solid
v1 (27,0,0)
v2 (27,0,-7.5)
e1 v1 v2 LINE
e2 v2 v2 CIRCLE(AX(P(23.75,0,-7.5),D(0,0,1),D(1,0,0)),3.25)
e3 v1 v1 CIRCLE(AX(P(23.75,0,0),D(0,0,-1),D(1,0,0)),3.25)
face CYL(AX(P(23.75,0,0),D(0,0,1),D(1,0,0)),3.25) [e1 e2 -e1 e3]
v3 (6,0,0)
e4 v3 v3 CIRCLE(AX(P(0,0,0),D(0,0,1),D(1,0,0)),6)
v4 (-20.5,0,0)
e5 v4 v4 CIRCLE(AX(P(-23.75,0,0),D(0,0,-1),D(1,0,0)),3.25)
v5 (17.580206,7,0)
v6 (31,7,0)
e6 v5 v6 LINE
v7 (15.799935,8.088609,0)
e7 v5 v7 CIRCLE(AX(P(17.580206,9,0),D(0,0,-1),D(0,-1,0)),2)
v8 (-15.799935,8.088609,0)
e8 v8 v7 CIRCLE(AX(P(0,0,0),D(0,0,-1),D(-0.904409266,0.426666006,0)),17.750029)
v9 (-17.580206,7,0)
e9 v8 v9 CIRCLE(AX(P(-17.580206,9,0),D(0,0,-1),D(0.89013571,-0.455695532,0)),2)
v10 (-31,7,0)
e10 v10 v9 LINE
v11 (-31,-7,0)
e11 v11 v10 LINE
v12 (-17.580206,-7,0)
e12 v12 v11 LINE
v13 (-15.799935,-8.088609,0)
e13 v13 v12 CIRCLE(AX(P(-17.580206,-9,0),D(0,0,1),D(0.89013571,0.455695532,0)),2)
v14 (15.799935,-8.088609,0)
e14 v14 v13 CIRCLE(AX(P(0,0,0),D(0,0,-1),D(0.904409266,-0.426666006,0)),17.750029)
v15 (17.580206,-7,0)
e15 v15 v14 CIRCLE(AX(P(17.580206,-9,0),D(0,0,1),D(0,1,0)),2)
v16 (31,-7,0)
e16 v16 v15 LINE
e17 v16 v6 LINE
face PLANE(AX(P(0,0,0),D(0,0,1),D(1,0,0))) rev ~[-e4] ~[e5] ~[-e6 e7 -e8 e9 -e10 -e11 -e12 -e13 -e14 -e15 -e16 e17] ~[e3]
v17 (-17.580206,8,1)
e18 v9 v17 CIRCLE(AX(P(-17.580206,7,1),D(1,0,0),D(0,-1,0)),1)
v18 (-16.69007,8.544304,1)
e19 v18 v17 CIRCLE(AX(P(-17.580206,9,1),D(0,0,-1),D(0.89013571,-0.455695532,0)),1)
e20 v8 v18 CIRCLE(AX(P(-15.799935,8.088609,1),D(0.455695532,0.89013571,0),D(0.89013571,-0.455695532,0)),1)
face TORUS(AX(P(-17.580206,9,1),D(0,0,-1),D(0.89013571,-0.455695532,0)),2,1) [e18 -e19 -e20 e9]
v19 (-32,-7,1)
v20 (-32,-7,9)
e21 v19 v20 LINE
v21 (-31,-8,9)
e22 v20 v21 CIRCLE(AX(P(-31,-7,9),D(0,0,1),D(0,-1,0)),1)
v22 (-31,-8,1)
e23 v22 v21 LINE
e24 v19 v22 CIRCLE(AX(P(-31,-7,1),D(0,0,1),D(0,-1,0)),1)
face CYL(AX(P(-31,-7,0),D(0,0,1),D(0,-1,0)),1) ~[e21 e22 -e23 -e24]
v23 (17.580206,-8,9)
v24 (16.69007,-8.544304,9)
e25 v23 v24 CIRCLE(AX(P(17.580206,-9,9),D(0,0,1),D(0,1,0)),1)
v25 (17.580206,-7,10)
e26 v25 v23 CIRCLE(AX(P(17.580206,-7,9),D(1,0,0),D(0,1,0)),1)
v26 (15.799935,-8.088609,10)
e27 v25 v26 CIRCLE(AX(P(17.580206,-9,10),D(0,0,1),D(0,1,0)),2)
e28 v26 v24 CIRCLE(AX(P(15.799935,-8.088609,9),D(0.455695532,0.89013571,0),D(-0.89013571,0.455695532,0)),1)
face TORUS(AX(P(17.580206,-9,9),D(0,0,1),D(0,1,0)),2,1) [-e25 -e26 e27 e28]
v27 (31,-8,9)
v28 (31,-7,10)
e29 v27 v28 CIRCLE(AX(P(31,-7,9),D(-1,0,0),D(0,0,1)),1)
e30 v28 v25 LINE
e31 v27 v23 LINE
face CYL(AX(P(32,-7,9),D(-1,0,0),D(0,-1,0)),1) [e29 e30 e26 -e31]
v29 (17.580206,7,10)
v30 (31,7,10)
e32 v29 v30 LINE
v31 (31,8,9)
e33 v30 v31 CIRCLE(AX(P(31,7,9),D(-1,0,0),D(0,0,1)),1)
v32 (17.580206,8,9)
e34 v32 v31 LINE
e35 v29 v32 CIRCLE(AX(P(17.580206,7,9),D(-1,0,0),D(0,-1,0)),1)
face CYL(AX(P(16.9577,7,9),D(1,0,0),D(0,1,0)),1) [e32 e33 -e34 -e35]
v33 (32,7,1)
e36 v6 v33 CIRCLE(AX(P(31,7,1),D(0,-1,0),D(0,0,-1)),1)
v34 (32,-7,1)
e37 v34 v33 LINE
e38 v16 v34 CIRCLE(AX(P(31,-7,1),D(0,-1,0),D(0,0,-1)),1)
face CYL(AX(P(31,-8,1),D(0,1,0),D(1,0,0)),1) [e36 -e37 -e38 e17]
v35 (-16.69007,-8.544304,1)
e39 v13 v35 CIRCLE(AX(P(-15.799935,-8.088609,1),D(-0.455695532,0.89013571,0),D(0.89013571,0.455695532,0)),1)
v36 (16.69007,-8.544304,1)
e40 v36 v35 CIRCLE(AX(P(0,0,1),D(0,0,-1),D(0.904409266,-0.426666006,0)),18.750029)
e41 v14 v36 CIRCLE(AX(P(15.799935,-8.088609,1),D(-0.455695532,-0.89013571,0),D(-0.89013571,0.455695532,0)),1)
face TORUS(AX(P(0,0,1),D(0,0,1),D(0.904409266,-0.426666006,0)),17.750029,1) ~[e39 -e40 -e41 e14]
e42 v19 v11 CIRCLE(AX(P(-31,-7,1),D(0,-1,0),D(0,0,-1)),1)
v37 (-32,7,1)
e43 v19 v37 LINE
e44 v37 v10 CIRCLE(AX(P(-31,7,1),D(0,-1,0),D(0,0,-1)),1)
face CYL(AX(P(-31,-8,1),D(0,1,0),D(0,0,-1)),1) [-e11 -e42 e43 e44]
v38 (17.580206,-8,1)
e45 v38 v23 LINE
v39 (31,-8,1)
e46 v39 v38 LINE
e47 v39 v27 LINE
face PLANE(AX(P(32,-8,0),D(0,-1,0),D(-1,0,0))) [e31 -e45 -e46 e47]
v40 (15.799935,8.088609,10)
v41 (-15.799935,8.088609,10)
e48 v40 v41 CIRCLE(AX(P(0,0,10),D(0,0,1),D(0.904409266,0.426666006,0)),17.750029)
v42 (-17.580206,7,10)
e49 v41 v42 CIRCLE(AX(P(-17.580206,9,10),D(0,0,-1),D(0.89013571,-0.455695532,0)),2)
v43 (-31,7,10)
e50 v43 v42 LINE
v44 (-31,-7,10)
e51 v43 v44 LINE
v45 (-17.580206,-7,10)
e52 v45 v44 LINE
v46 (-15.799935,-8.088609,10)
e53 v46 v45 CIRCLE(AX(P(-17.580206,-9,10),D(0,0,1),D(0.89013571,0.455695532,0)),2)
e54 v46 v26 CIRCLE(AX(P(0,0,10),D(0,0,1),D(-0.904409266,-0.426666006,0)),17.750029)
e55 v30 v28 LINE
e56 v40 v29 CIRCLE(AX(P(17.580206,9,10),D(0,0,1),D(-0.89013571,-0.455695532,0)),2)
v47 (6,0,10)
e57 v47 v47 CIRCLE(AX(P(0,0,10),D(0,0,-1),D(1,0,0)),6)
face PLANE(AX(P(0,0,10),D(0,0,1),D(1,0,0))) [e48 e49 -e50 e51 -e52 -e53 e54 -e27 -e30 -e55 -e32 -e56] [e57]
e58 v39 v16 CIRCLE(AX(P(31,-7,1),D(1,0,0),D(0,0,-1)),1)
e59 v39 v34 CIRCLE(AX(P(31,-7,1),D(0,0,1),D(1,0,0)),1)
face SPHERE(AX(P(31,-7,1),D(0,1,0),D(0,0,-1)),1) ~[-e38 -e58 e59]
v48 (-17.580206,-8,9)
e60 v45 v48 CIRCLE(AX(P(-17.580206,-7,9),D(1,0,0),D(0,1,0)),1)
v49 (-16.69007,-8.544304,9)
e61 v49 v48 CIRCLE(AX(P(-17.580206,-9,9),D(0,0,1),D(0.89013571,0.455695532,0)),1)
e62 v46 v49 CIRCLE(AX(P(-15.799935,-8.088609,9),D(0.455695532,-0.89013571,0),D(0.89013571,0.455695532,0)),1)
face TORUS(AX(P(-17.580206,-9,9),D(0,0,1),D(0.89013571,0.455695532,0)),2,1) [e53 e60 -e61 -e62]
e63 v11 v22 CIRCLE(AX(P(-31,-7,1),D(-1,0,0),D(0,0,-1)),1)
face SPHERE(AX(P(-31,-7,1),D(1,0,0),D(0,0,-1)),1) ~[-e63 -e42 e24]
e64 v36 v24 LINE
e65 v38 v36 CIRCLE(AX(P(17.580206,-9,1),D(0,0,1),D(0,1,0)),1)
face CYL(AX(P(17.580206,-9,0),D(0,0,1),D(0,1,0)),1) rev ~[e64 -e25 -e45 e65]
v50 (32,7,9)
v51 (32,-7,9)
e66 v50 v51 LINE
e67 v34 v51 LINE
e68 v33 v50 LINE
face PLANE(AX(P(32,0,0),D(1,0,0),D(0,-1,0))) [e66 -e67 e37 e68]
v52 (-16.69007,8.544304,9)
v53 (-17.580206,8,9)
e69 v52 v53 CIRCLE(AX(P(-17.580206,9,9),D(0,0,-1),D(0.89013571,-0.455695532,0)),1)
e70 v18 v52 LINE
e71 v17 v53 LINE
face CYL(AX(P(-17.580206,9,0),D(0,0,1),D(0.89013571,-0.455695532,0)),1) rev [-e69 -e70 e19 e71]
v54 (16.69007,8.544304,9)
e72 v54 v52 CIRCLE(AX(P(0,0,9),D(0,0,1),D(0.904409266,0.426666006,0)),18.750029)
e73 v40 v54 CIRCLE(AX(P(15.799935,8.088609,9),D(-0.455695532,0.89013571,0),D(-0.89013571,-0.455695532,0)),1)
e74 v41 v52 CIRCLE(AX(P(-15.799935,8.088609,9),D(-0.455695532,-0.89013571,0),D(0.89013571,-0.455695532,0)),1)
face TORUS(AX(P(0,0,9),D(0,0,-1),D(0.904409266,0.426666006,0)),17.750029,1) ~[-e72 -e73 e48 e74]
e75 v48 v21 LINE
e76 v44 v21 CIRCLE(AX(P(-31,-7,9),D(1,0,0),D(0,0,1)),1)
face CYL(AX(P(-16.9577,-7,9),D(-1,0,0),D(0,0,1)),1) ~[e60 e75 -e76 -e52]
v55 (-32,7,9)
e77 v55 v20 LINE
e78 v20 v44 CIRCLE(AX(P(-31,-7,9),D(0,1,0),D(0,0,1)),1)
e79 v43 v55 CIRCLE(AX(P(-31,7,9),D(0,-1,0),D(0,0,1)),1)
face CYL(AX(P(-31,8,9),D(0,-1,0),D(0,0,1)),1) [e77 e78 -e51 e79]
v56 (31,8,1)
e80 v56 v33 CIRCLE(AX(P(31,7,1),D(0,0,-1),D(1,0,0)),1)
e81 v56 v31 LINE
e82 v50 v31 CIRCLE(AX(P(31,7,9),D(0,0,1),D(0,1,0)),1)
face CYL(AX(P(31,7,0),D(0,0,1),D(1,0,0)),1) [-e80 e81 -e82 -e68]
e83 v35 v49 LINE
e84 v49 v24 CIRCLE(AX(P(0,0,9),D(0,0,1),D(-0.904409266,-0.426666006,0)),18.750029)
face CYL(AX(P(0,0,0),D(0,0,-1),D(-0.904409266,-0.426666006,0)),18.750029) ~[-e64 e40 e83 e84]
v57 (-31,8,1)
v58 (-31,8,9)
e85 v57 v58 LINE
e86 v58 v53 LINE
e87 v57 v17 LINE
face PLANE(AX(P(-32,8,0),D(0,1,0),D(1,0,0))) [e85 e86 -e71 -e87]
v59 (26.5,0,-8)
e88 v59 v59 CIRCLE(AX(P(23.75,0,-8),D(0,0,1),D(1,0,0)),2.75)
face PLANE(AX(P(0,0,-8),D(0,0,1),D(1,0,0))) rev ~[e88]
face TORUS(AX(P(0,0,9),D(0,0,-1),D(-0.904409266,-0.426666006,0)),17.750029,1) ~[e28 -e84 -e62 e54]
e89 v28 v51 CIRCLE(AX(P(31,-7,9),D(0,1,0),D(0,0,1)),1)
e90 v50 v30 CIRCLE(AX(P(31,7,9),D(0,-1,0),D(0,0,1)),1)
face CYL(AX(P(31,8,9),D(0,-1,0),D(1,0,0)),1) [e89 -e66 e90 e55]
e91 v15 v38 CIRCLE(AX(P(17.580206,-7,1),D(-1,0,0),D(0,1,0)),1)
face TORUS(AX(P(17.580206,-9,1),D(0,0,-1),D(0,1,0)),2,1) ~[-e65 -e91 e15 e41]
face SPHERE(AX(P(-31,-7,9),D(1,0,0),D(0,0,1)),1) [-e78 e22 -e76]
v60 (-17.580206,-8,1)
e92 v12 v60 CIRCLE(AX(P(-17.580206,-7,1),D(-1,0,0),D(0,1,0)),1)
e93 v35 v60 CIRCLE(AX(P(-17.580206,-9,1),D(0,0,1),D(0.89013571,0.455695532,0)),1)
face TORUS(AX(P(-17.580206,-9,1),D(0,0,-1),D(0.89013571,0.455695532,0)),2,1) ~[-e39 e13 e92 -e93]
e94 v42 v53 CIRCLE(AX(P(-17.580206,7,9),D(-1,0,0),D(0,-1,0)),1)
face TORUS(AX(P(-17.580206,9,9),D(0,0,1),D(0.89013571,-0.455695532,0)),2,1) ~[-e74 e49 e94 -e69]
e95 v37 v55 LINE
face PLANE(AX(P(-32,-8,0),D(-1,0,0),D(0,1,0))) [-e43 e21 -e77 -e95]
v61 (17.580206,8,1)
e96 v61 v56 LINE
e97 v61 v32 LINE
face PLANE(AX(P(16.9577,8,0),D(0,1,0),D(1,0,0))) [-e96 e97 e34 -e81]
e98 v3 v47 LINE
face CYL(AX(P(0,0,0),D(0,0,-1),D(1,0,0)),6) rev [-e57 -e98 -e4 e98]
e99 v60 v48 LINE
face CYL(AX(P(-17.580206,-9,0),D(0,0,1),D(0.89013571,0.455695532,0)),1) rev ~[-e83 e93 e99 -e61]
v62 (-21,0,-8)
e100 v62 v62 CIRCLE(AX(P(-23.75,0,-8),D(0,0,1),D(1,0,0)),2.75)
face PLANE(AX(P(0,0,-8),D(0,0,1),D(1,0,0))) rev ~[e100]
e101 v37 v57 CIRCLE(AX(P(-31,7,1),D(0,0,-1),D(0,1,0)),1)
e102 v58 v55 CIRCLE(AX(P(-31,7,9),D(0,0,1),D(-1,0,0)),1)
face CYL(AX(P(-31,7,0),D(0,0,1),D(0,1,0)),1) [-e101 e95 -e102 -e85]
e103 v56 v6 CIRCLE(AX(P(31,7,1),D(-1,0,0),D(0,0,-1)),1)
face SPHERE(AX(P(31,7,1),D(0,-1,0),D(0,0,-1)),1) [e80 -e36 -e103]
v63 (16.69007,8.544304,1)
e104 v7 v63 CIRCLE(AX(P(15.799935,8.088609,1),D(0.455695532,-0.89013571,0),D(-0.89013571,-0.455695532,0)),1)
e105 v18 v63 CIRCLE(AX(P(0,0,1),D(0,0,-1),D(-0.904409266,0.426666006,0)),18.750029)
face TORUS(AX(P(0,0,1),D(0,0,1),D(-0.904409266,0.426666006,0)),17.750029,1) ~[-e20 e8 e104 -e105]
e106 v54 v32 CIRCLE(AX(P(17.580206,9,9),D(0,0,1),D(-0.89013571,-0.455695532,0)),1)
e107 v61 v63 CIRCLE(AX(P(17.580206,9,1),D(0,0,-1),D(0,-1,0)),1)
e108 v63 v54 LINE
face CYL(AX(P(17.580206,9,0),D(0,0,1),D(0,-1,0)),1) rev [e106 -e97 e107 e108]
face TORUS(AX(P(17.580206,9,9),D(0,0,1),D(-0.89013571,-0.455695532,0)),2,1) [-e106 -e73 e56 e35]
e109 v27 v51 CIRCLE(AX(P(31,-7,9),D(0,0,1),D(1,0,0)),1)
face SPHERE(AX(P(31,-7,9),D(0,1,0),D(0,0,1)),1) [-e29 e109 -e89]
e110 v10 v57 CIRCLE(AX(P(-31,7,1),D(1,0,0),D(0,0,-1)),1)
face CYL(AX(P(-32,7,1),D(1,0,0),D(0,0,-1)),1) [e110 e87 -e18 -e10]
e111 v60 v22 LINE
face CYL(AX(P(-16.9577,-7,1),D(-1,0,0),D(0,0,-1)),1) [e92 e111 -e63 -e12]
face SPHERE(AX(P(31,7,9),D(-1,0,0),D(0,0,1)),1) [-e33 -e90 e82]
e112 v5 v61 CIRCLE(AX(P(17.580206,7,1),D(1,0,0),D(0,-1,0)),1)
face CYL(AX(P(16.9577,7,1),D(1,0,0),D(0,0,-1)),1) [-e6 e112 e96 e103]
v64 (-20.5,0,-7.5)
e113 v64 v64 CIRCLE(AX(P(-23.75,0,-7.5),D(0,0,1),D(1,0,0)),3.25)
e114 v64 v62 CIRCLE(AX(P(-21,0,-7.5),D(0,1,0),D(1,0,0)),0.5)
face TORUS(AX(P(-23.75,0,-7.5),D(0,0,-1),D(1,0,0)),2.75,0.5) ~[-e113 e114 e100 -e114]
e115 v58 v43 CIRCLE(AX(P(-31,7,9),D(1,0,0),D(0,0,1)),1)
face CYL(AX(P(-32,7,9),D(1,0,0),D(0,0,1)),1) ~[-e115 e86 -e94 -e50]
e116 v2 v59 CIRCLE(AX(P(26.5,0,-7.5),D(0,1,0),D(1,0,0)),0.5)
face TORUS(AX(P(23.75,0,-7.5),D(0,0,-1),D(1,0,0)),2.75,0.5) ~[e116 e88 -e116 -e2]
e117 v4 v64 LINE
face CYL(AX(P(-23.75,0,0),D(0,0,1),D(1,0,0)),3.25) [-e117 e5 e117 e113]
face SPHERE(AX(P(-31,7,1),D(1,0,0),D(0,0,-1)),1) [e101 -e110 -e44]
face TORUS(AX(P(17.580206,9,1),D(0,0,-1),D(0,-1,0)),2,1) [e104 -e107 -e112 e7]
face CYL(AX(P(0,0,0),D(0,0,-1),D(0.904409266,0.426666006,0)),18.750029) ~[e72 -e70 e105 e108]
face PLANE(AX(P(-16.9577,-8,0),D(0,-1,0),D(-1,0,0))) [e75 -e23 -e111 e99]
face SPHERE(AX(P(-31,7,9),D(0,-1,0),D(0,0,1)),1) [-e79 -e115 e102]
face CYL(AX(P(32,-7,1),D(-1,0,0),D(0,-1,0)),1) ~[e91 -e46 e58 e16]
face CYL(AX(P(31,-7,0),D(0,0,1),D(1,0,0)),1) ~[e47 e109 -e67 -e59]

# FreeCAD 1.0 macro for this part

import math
import FreeCAD as App
import Part
import Sketcher


def edges_at(feature, points):
    """Names of the edges that pass closest to the given points."""
    edges = feature.Shape.Edges
    near = lambda p: min(range(len(edges)), key=lambda i: edges[i].distToShape(Part.Vertex(*p))[0])
    return sorted({f"Edge{near(p) + 1}" for p in points})

doc = App.newDocument("Part")
body = doc.addObject("PartDesign::Body", "Body")

# Sketch on XY plane
sketch1 = doc.addObject("Sketcher::SketchObject", "Sketch")
body.addObject(sketch1)
sketch1.AttachmentSupport = (doc.XY_Plane, [""])
sketch1.MapMode = "FlatFace"
sketch1.addGeometry(Part.LineSegment(App.Vector(32, -8, 0), App.Vector(32, 8, 0)), False)
sketch1.addGeometry(Part.LineSegment(App.Vector(32, 8, 0), App.Vector(16.9577, 8, 0)), False)
sketch1.addGeometry(Part.ArcOfCircle(Part.Circle(App.Vector(0, 0, 0), App.Vector(0, 0, 1), 18.750029), math.radians(25.256162), math.radians(154.743838)), False)
sketch1.addGeometry(Part.LineSegment(App.Vector(-16.9577, 8, 0), App.Vector(-32, 8, 0)), False)
sketch1.addGeometry(Part.LineSegment(App.Vector(-32, 8, 0), App.Vector(-32, -8, 0)), False)
sketch1.addGeometry(Part.LineSegment(App.Vector(-32, -8, 0), App.Vector(-16.9577, -8, 0)), False)
sketch1.addGeometry(Part.ArcOfCircle(Part.Circle(App.Vector(0, 0, 0), App.Vector(0, 0, 1), 18.750029), math.radians(-154.743838), math.radians(-25.256162)), False)
sketch1.addGeometry(Part.LineSegment(App.Vector(16.9577, -8, 0), App.Vector(32, -8, 0)), False)
sketch1.addGeometry(Part.Circle(App.Vector(0, 0, 0), App.Vector(0, 0, 1), 6), False)
sketch1.addConstraint(Sketcher.Constraint("Coincident", 0, 2, 1, 1))
sketch1.addConstraint(Sketcher.Constraint("Coincident", 1, 2, 2, 1))
sketch1.addConstraint(Sketcher.Constraint("Coincident", 2, 2, 3, 1))
sketch1.addConstraint(Sketcher.Constraint("Coincident", 3, 2, 4, 1))
sketch1.addConstraint(Sketcher.Constraint("Coincident", 4, 2, 5, 1))
sketch1.addConstraint(Sketcher.Constraint("Coincident", 5, 2, 6, 1))
sketch1.addConstraint(Sketcher.Constraint("Coincident", 6, 2, 7, 1))
sketch1.addConstraint(Sketcher.Constraint("Coincident", 7, 2, 0, 1))
sketch1.addConstraint(Sketcher.Constraint("Vertical", 0))
sketch1.addConstraint(Sketcher.Constraint("Horizontal", 1))
sketch1.addConstraint(Sketcher.Constraint("Horizontal", 3))
sketch1.addConstraint(Sketcher.Constraint("Vertical", 4))
sketch1.addConstraint(Sketcher.Constraint("Horizontal", 5))
sketch1.addConstraint(Sketcher.Constraint("Horizontal", 7))
sketch1.addConstraint(Sketcher.Constraint("Coincident", 2, 3, -1, 1))
sketch1.addConstraint(Sketcher.Constraint("Coincident", 6, 3, -1, 1))
sketch1.addConstraint(Sketcher.Constraint("Coincident", 8, 3, -1, 1))
sketch1.addConstraint(Sketcher.Constraint("Equal", 2, 6))
sketch1.addConstraint(Sketcher.Constraint("Symmetric", 0, 2, 4, 2, -1, 1))
sketch1.addConstraint(Sketcher.Constraint("Horizontal", 1, 2, 2, 2))
sketch1.addConstraint(Sketcher.Constraint("Horizontal", 5, 2, 6, 2))
sketch1.addConstraint(Sketcher.Constraint("Diameter", 8, 12.0))
sketch1.addConstraint(Sketcher.Constraint("Radius", 2, 18.75))
sketch1.addConstraint(Sketcher.Constraint("DistanceY", 0, 1, 0, 2, 16.0))
sketch1.addConstraint(Sketcher.Constraint("DistanceX", -1, 1, 0, 2, 32.0))
pad1 = doc.addObject("PartDesign::Pad", "Pad")
body.addObject(pad1)
pad1.Profile = sketch1
pad1.Length = 10

# Sketch on XY plane
sketch2 = doc.addObject("Sketcher::SketchObject", "Sketch001")
body.addObject(sketch2)
sketch2.AttachmentSupport = (doc.XY_Plane, [""])
sketch2.MapMode = "FlatFace"
sketch2.addGeometry(Part.Circle(App.Vector(23.75, 0, 0), App.Vector(0, 0, 1), 3.25), False)
sketch2.addGeometry(Part.Circle(App.Vector(-23.75, 0, 0), App.Vector(0, 0, 1), 3.25), False)
sketch2.addConstraint(Sketcher.Constraint("Equal", 0, 1))
sketch2.addConstraint(Sketcher.Constraint("Symmetric", 0, 3, 1, 3, -1, 1))
sketch2.addConstraint(Sketcher.Constraint("PointOnObject", 0, 3, -1))
sketch2.addConstraint(Sketcher.Constraint("Diameter", 0, 6.5))
sketch2.addConstraint(Sketcher.Constraint("DistanceX", 1, 3, 0, 3, 47.5))
pad2 = doc.addObject("PartDesign::Pad", "Pad001")
body.addObject(pad2)
pad2.Profile = sketch2
pad2.Length = 8
pad2.Reversed = True
doc.recompute()

fillet = doc.addObject("PartDesign::Fillet", "Fillet")
body.addObject(fillet)
fillet.Base = (pad2, edges_at(pad2, [
    (0, 18.75, 10),
    (24.479, 8, 10),
    (32, 0, 10),
    (24.479, -8, 10),
    (0, -18.75, 10),
    (-24.479, -8, 10),
    (-32, 0, 10),
    (-24.479, 8, 10),
    (32, 0, 0),
    (24.479, 8, 0),
    (0, 18.75, 0),
    (24.479, -8, 0),
    (0, -18.75, 0),
    (-24.479, -8, 0),
    (-24.479, 8, 0),
    (-32, 0, 0),
    (-32, -8, 5),
    (-32, 8, 5),
    (32, 8, 5),
    (32, -8, 5),
    (16.958, -8, 5),
    (-16.958, -8, 5),
    (-16.958, 8, 5),
    (16.958, 8, 5),
]))
fillet.Radius = 1
doc.recompute()

fillet2 = doc.addObject("PartDesign::Fillet", "Fillet001")
body.addObject(fillet2)
fillet2.Base = (fillet, edges_at(fillet, [(20.5, 0, -8), (-27, 0, -8)]))
fillet2.Radius = 0.5

doc.recompute()
